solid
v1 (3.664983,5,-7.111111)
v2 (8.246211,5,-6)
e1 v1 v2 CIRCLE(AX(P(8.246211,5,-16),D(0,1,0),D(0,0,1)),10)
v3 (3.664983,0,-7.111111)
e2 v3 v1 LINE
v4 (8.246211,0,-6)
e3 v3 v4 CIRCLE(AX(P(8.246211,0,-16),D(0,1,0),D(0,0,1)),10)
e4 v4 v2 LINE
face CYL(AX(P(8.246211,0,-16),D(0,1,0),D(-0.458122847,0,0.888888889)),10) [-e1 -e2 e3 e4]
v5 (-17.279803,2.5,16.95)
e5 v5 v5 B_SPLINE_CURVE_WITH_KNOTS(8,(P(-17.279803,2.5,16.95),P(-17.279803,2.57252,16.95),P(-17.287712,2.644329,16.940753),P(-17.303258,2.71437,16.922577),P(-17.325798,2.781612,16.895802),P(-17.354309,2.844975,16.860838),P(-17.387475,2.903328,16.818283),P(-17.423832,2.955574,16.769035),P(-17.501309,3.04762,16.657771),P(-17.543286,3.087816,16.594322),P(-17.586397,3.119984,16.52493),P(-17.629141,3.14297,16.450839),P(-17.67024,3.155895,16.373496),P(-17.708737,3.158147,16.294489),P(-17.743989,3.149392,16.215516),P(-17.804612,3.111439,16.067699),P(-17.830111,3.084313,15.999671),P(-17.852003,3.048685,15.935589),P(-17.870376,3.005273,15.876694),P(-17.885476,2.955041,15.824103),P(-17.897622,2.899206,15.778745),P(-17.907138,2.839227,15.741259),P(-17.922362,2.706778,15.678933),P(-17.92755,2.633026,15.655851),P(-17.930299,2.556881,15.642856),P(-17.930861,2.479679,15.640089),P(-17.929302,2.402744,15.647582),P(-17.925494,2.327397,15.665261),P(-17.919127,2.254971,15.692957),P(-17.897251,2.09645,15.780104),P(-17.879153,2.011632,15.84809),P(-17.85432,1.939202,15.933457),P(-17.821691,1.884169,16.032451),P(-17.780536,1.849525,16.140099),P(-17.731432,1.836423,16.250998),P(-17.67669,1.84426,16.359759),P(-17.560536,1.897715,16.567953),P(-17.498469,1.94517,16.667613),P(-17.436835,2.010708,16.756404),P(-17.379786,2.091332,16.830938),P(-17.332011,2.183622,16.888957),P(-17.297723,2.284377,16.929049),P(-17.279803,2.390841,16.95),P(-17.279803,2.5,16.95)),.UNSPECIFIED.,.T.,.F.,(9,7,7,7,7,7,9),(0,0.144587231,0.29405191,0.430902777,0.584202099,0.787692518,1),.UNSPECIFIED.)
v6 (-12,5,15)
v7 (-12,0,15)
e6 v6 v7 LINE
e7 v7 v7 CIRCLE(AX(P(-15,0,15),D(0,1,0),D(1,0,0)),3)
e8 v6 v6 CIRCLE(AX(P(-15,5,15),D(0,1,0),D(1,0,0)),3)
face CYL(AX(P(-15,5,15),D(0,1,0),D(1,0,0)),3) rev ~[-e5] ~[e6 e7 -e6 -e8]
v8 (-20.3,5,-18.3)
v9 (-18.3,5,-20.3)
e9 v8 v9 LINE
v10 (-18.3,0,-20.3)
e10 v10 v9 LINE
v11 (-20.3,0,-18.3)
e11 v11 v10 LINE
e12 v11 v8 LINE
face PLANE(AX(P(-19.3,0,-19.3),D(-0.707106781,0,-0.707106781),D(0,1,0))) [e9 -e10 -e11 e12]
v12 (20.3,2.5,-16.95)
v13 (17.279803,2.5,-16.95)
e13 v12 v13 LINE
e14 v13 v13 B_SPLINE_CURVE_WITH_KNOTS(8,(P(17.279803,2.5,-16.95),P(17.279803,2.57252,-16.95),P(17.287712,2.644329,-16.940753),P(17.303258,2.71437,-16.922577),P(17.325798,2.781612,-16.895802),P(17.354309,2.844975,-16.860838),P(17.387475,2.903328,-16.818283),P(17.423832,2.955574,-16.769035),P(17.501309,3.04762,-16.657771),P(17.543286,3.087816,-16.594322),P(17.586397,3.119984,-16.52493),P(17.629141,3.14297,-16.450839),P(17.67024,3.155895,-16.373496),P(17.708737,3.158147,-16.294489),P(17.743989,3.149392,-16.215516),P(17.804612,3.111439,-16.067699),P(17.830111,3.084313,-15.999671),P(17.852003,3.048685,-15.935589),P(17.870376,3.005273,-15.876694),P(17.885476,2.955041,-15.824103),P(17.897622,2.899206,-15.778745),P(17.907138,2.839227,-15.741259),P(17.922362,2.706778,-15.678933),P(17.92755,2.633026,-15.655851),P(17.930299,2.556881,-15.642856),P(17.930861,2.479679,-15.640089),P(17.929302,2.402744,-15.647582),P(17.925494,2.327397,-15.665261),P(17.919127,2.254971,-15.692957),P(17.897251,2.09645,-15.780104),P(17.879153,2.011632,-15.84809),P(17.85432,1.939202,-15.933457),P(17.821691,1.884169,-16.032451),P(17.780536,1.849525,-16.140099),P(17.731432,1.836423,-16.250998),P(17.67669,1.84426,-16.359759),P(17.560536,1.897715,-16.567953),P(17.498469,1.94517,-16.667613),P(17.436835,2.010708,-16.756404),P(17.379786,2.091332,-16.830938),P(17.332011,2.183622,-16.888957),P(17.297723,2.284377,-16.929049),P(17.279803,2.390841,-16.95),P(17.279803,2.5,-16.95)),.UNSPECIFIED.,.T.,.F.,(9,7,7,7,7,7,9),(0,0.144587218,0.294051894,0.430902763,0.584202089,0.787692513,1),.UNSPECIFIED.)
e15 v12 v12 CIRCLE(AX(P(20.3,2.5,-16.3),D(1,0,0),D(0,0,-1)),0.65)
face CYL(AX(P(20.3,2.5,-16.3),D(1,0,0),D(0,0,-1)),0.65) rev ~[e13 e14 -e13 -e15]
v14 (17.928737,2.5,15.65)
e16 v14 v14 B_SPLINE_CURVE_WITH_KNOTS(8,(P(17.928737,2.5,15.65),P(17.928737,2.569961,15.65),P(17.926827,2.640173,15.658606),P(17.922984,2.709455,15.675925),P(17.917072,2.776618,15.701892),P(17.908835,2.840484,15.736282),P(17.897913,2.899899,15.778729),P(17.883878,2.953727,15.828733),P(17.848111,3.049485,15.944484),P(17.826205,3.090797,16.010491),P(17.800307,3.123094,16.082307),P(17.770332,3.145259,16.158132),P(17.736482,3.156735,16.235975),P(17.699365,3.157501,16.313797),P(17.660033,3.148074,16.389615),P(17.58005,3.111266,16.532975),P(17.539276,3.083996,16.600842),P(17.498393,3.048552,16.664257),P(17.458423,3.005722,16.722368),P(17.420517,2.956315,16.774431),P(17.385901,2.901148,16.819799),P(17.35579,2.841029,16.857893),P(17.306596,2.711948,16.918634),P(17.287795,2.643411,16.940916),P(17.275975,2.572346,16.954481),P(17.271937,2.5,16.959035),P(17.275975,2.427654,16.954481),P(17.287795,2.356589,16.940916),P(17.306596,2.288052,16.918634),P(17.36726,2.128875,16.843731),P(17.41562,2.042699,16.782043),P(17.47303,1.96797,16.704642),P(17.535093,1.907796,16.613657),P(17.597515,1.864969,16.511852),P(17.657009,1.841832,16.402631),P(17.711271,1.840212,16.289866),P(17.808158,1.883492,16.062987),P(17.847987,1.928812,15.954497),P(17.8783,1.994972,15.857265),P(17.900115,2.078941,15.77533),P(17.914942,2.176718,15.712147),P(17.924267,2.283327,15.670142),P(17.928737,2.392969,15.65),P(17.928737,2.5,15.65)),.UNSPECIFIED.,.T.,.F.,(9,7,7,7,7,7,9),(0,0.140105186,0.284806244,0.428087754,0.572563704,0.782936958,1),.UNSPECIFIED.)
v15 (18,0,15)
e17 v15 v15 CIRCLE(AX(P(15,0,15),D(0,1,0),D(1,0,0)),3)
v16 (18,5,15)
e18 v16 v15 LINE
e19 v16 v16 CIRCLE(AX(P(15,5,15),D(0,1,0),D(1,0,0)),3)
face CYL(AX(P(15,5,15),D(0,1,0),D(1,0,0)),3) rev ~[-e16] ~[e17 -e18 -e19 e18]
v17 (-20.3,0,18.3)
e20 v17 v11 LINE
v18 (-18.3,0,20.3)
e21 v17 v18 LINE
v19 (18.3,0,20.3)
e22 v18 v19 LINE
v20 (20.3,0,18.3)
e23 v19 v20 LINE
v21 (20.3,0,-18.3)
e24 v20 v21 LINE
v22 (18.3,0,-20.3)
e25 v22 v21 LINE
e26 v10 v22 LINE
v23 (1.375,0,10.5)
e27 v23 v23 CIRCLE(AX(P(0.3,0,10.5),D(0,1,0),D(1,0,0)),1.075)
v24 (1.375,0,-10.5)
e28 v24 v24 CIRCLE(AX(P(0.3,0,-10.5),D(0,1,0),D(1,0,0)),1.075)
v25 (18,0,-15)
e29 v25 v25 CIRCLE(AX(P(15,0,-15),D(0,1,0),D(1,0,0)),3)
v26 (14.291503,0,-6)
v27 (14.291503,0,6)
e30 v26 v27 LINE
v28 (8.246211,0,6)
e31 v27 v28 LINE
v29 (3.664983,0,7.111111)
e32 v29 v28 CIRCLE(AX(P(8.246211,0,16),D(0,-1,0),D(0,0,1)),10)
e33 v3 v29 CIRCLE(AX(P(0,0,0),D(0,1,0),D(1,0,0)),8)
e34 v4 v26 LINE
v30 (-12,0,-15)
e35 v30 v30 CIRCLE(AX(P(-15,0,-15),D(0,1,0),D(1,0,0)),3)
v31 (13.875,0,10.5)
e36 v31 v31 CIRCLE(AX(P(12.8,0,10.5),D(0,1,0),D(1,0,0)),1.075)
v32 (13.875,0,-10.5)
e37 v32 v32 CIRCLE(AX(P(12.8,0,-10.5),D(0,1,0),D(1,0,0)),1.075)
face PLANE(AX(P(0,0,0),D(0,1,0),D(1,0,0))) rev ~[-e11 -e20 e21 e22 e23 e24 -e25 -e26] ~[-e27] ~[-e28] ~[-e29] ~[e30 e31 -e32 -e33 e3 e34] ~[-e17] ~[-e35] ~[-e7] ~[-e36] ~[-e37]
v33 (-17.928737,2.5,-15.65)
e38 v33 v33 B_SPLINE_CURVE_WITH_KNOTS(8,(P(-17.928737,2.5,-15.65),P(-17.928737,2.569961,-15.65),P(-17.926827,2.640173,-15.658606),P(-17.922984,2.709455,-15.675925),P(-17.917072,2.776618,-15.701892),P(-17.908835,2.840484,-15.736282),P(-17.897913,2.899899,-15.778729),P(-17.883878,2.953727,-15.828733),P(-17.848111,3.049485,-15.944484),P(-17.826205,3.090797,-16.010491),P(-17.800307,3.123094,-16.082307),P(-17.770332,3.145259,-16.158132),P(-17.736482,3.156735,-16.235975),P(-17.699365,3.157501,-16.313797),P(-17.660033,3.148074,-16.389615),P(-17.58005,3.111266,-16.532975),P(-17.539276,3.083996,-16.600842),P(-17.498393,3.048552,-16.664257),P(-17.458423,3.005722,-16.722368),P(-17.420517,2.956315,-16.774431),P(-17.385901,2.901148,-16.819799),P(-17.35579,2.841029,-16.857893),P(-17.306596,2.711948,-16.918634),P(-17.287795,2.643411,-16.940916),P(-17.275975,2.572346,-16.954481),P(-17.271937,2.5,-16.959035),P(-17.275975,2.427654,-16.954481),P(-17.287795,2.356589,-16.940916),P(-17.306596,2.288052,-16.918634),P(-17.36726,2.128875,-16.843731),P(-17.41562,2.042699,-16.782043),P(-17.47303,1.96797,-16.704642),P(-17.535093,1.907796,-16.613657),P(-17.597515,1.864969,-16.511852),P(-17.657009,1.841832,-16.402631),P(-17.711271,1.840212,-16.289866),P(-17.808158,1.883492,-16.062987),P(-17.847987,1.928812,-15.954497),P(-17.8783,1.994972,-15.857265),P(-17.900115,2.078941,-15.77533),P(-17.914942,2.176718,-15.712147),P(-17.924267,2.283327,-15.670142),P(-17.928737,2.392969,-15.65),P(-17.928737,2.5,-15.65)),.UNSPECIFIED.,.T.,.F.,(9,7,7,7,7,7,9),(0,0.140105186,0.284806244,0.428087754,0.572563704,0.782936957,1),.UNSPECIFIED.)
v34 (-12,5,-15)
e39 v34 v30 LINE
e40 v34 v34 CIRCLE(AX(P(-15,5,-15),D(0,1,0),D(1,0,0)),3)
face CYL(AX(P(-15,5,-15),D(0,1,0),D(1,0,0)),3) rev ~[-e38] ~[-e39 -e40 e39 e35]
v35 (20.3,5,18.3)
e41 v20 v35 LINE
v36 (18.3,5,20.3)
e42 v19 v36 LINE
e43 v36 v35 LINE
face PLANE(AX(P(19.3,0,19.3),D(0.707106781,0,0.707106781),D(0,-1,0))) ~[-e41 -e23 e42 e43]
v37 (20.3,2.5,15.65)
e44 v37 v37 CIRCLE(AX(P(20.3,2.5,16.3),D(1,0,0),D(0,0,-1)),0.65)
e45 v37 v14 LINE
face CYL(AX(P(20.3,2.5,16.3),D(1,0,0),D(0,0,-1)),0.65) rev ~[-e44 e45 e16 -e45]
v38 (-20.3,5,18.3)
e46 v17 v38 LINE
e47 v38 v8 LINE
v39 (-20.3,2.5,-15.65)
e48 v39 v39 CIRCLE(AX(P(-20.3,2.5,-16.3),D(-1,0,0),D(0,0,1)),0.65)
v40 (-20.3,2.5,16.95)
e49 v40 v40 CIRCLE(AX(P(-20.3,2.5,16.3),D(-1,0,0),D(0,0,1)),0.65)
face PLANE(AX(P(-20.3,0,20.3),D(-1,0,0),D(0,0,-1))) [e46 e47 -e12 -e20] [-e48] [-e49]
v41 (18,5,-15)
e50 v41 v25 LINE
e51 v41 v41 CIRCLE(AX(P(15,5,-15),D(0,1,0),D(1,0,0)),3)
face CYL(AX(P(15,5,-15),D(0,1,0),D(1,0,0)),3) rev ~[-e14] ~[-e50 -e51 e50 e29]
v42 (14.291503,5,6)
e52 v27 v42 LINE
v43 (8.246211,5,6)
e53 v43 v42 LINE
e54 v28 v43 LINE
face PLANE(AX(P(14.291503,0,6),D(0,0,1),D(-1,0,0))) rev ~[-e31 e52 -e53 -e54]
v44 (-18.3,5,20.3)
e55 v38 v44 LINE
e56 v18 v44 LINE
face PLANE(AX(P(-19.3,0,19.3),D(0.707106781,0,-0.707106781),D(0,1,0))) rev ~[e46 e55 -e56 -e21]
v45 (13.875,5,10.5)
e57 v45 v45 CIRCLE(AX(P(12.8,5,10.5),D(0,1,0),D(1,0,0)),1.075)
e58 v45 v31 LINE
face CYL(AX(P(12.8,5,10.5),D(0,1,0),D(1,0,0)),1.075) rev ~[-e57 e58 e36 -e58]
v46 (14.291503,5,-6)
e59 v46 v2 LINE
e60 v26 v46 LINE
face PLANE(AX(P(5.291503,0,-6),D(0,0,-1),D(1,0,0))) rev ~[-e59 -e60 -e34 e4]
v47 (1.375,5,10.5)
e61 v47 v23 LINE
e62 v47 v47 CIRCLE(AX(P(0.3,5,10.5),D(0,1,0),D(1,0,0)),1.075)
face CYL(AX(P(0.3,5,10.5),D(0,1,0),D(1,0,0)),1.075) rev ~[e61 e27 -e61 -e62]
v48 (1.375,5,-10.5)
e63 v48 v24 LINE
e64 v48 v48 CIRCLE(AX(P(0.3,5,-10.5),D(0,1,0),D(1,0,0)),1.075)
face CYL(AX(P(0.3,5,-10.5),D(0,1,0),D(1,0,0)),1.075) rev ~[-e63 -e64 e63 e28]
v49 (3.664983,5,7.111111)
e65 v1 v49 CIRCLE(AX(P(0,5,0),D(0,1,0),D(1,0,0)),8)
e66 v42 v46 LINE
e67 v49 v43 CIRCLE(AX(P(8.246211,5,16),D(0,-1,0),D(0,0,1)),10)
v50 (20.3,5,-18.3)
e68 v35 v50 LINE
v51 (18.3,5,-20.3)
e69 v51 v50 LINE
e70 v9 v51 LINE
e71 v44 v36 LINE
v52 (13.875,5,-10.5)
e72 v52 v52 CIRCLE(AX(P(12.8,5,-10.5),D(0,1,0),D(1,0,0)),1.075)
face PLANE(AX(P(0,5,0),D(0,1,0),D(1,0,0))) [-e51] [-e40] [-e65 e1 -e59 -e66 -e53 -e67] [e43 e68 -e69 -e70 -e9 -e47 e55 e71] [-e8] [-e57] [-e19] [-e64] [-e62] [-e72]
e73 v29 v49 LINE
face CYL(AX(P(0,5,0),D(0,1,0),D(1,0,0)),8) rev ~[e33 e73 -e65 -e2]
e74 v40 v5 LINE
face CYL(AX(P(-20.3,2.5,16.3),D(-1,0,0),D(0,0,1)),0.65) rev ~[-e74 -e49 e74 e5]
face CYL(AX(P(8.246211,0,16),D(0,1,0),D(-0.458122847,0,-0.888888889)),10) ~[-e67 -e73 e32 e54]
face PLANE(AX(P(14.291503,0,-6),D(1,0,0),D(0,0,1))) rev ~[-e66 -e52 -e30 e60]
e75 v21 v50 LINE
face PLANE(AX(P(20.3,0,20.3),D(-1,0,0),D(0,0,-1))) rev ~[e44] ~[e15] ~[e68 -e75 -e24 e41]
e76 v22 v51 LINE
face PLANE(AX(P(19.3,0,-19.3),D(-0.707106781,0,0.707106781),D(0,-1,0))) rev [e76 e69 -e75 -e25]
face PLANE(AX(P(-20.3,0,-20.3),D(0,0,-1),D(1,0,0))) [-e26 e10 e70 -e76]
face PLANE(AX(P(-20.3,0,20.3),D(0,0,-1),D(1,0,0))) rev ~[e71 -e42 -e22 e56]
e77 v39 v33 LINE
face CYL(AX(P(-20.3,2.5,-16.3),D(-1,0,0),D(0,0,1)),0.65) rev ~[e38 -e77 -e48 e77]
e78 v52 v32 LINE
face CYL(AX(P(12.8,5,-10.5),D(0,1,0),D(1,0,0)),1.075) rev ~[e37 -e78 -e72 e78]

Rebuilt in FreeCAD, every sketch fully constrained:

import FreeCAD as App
import Part
import Sketcher

V = App.Vector


def edges_at(feature, points):
    """Names of the edges that pass closest to the given points."""
    edges = feature.Shape.Edges
    near = lambda p: min(range(len(edges)), key=lambda i: edges[i].distToShape(Part.Vertex(*p))[0])
    return sorted({f"Edge{near(p) + 1}" for p in points})


def add_polygon(sketch, points):
    """Adds a closed chain of lines whose ends are joined by coincident constraints."""
    first, n = sketch.GeometryCount, len(points)
    for a, b in zip(points, points[1:] + points[:1]):
        sketch.addGeometry(Part.LineSegment(App.Vector(*a, 0), App.Vector(*b, 0)), False)
    for i in range(n):
        sketch.addConstraint(Sketcher.Constraint("Coincident", first + i, 2, first + (i + 1) % n, 1))

doc = App.newDocument("Part")
params = doc.addObject("Spreadsheet::Sheet", "Params")
for row, (alias, value) in enumerate([
    ("sketch1_width", "40.6 mm"),
    ("pad1_length", "5 mm"),
    ("sketch2_diameter", "16 mm"),
    ("pocket1_length", "5 mm"),
    ("sketch3_width", "9 mm"),
    ("sketch3_height", "12 mm"),
    ("sketch4_diameter", "6 mm"),
    ("pocket3_length", "10 mm"),
    ("chamfer_size", "2 mm"),
    ("sketch5_diameter", "1.3 mm"),
    ("pocket4_length", "5 mm"),
    ("sketch6_diameter", "1.3 mm"),
    ("pocket5_length", "5 mm"),
    ("sketch7_diameter", "2.15 mm"),
    ("pocket6_length", "10 mm"),
    ("fillet_radius", "10 mm"),
], start=1):
    params.set(f"A{row}", alias)
    params.set(f"B{row}", "=" + value)
    params.setAlias(f"B{row}", alias)

body = doc.addObject("PartDesign::Body", "Body")

sketch1 = body.newObject("Sketcher::SketchObject", "Sketch")
sketch1.AttachmentSupport = (doc.getObject("XZ_Plane"), [""])
sketch1.MapMode = "FlatFace"
add_polygon(sketch1, [(-20, -20), (-20, 20), (20, 20), (20, -20)])
sketch1.addConstraint([
    Sketcher.Constraint("Vertical", 0),
    Sketcher.Constraint("Horizontal", 1),
    Sketcher.Constraint("Vertical", 2),
    Sketcher.Constraint("Horizontal", 3),
    Sketcher.Constraint("Symmetric", 0, 2, 2, 2, -1, 1),
    Sketcher.Constraint("Equal", 3, 0),
    Sketcher.Constraint("DistanceX", 1, 1, 1, 2, 40.6),
])
sketch1.setExpression("Constraints[10]", "Params.sketch1_width")
pad1 = body.newObject("PartDesign::Pad", "Pad")
pad1.Profile = sketch1
pad1.setExpression("Length", "Params.pad1_length")
pad1.Reversed = True

sketch2 = body.newObject("Sketcher::SketchObject", "Sketch001")
sketch2.AttachmentSupport = (doc.getObject("XZ_Plane"), [""])
sketch2.MapMode = "FlatFace"
sketch2.AttachmentOffset = App.Placement(V(0, 0, -5), App.Rotation())
sketch2.addGeometry(Part.Circle(V(0, 0, 0), V(0, 0, 1), 8), False)
sketch2.addConstraint([
    Sketcher.Constraint("Coincident", 0, 3, -1, 1),
    Sketcher.Constraint("Diameter", 0, 16.0),
])
sketch2.setExpression("Constraints[1]", "Params.sketch2_diameter")
pocket1 = body.newObject("PartDesign::Pocket", "Pocket")
pocket1.Profile = sketch2
pocket1.setExpression("Length", "Params.pocket1_length")
pocket1.Reversed = True

sketch3 = body.newObject("Sketcher::SketchObject", "Sketch002")
sketch3.AttachmentSupport = (doc.getObject("XZ_Plane"), [""])
sketch3.MapMode = "FlatFace"
add_polygon(sketch3, [(5, -6), (14, -6), (14, 6), (5, 6)])
sketch3.addConstraint([
    Sketcher.Constraint("Horizontal", 0),
    Sketcher.Constraint("Vertical", 1),
    Sketcher.Constraint("Horizontal", 2),
    Sketcher.Constraint("Vertical", 3),
    Sketcher.Constraint("DistanceX", 0, 1, 0, 2, 9.0),
    Sketcher.Constraint("DistanceY", 1, 1, 1, 2, 12.0),
    Sketcher.Constraint("DistanceY", 0, 2, -1, 1, 6.0),
    Sketcher.Constraint("DistanceX", -1, 1, 0, 2, 14.291503),
])
sketch3.setExpression("Constraints[8]", "Params.sketch3_width")
sketch3.setExpression("Constraints[9]", "Params.sketch3_height")
pocket2 = body.newObject("PartDesign::Pocket", "Pocket001")
pocket2.Profile = sketch3
pocket2.Type = "ThroughAll"

sketch4 = body.newObject("Sketcher::SketchObject", "Sketch003")
sketch4.AttachmentSupport = (doc.getObject("XZ_Plane"), [""])
sketch4.MapMode = "FlatFace"
sketch4.AttachmentOffset = App.Placement(V(0, 0, -5), App.Rotation())
sketch4.addGeometry([
    Part.Circle(V(15, -15, 0), V(0, 0, 1), 3),
    Part.Circle(V(15, 15, 0), V(0, 0, 1), 3),
    Part.Circle(V(-15, 15, 0), V(0, 0, 1), 3),
    Part.Circle(V(-15, -15, 0), V(0, 0, 1), 3),
], False)
sketch4.addConstraint([
    Sketcher.Constraint("Equal", 0, 1),
    Sketcher.Constraint("Equal", 1, 2),
    Sketcher.Constraint("Equal", 2, 3),
    Sketcher.Constraint("Symmetric", 0, 3, 2, 3, -1, 1),
    Sketcher.Constraint("Symmetric", 1, 3, 3, 3, -1, 1),
    Sketcher.Constraint("Symmetric", 1, 3, 2, 3, -2),
    Sketcher.Constraint("Diameter", 0, 6.0),
    Sketcher.Constraint("DistanceX", -1, 1, 0, 3, 15.0),
    Sketcher.Constraint("DistanceY", 0, 3, -1, 1, 15.0),
])
sketch4.setExpression("Constraints[6]", "Params.sketch4_diameter")
pocket3 = body.newObject("PartDesign::Pocket", "Pocket002")
pocket3.Profile = sketch4
pocket3.setExpression("Length", "Params.pocket3_length")
pocket3.Reversed = True
doc.recompute()

chamfer = body.newObject("PartDesign::Chamfer", "Chamfer")
chamfer.Base = (pocket3, edges_at(pocket3, [
    (20.3, 2.5, 20.3),
    (-20.3, 2.5, 20.3),
    (-20.3, 2.5, -20.3),
    (20.3, 2.5, -20.3),
]))
chamfer.setExpression("Size", "Params.chamfer_size")

sketch5 = body.newObject("Sketcher::SketchObject", "Sketch004")
sketch5.AttachmentSupport = (doc.getObject("YZ_Plane"), [""])
sketch5.MapMode = "FlatFace"
sketch5.AttachmentOffset = App.Placement(V(0, 0, -20.3), App.Rotation())
sketch5.addGeometry([
    Part.Circle(V(2.5, -16.3, 0), V(0, 0, 1), 0.7),
    Part.Circle(V(2.5, 16.3, 0), V(0, 0, 1), 0.7),
], False)
sketch5.addConstraint([
    Sketcher.Constraint("Equal", 0, 1),
    Sketcher.Constraint("Symmetric", 0, 3, 1, 3, -1),
    Sketcher.Constraint("Diameter", 0, 1.3),
    Sketcher.Constraint("DistanceX", -1, 1, 0, 3, 2.5),
    Sketcher.Constraint("DistanceY", 0, 3, -1, 1, 16.3),
])
sketch5.setExpression("Constraints[2]", "Params.sketch5_diameter")
pocket4 = body.newObject("PartDesign::Pocket", "Pocket003")
pocket4.Profile = sketch5
pocket4.setExpression("Length", "Params.pocket4_length")
pocket4.Reversed = True

sketch6 = body.newObject("Sketcher::SketchObject", "Sketch005")
sketch6.AttachmentSupport = (doc.getObject("YZ_Plane"), [""])
sketch6.MapMode = "FlatFace"
sketch6.AttachmentOffset = App.Placement(V(0, 0, 20.3), App.Rotation())
sketch6.addGeometry([
    Part.Circle(V(2.5, -16.3, 0), V(0, 0, 1), 0.7),
    Part.Circle(V(2.5, 16.3, 0), V(0, 0, 1), 0.7),
], False)
sketch6.addConstraint([
    Sketcher.Constraint("Equal", 0, 1),
    Sketcher.Constraint("Symmetric", 0, 3, 1, 3, -1),
    Sketcher.Constraint("Diameter", 0, 1.3),
    Sketcher.Constraint("DistanceX", -1, 1, 0, 3, 2.5),
    Sketcher.Constraint("DistanceY", 0, 3, -1, 1, 16.3),
])
sketch6.setExpression("Constraints[2]", "Params.sketch6_diameter")
pocket5 = body.newObject("PartDesign::Pocket", "Pocket004")
pocket5.Profile = sketch6
pocket5.setExpression("Length", "Params.pocket5_length")

sketch7 = body.newObject("Sketcher::SketchObject", "Sketch006")
sketch7.AttachmentSupport = (doc.getObject("XZ_Plane"), [""])
sketch7.MapMode = "FlatFace"
sketch7.AttachmentOffset = App.Placement(V(0, 0, -5), App.Rotation())
sketch7.addGeometry([
    Part.Circle(V(0.3, 10.5, 0), V(0, 0, 1), 1.1),
    Part.Circle(V(12.8, 10.5, 0), V(0, 0, 1), 1.1),
    Part.Circle(V(0.3, -10.5, 0), V(0, 0, 1), 1.1),
    Part.Circle(V(12.8, -10.5, 0), V(0, 0, 1), 1.1),
], False)
sketch7.addConstraint([
    Sketcher.Constraint("Equal", 0, 1),
    Sketcher.Constraint("Equal", 1, 2),
    Sketcher.Constraint("Equal", 2, 3),
    Sketcher.Constraint("Symmetric", 0, 3, 2, 3, -1),
    Sketcher.Constraint("Symmetric", 1, 3, 3, 3, -1),
    Sketcher.Constraint("Horizontal", 0, 3, 1, 3),
    Sketcher.Constraint("Diameter", 0, 2.15),
    Sketcher.Constraint("DistanceY", 2, 3, 0, 3, 21.0),
    Sketcher.Constraint("DistanceX", -1, 1, 0, 3, 0.3),
    Sketcher.Constraint("DistanceX", -1, 1, 1, 3, 12.8),
])
sketch7.setExpression("Constraints[6]", "Params.sketch7_diameter")
pocket6 = body.newObject("PartDesign::Pocket", "Pocket005")
pocket6.Profile = sketch7
pocket6.setExpression("Length", "Params.pocket6_length")
pocket6.Reversed = True
doc.recompute()

fillet = body.newObject("PartDesign::Fillet", "Fillet")
fillet.Base = (pocket6, edges_at(pocket6, [(5.292, 2.5, -6), (5.292, 2.5, 6)]))
fillet.setExpression("Radius", "Params.fillet_radius")

doc.recompute()
